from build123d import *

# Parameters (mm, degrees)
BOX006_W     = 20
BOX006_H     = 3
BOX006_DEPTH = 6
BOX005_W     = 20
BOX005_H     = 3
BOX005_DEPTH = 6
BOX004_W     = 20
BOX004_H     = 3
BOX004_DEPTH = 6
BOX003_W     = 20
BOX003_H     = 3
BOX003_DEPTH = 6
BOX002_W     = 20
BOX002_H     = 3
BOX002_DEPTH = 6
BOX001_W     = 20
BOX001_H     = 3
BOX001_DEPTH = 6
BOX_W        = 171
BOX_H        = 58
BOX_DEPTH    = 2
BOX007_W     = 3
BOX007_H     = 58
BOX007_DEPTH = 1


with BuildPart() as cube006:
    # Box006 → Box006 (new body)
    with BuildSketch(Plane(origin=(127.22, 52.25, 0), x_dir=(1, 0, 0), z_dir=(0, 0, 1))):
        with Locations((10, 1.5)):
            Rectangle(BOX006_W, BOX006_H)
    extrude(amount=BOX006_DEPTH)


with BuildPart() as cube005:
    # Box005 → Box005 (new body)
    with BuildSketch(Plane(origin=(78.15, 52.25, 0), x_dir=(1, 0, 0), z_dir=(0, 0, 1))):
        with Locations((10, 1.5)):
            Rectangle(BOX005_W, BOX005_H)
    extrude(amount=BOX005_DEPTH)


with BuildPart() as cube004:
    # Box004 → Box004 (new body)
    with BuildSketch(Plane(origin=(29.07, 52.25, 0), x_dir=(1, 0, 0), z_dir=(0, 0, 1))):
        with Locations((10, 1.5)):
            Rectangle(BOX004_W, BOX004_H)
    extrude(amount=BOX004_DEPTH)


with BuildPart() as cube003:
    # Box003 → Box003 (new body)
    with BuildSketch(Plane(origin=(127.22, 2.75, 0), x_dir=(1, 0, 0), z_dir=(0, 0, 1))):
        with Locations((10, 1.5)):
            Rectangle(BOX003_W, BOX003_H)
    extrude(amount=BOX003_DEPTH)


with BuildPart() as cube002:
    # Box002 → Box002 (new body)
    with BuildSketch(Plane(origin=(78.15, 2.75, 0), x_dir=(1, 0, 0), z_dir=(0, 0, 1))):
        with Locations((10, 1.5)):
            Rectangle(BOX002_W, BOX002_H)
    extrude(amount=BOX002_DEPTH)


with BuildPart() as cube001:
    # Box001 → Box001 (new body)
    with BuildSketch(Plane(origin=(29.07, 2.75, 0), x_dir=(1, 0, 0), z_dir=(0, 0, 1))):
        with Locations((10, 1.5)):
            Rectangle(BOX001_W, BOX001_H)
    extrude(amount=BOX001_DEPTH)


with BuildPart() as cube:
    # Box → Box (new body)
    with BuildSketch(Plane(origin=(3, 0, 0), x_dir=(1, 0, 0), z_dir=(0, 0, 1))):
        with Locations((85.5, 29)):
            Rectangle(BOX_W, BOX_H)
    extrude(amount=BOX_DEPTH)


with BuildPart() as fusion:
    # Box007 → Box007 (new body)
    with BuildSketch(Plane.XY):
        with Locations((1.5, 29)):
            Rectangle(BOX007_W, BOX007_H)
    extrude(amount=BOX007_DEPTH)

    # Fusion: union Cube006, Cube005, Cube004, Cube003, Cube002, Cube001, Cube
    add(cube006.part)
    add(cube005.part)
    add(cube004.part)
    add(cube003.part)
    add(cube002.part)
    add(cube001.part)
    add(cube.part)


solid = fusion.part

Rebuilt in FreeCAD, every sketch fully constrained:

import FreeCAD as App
import Part
import Sketcher

V = App.Vector
Q = App.Units.Quantity

doc = App.newDocument("Part")
body = doc.addObject("PartDesign::Body", "Body")

sketch1 = doc.addObject("Sketcher::SketchObject", "Sketch")
body.addObject(sketch1)
sketch1.AttachmentSupport = (doc.XY_Plane, [""])
sketch1.MapMode = "FlatFace"
sketch1.addGeometry([
    Part.LineSegment(V(127.2, 55.2, 0), V(127.2, 52.2, 0)),
    Part.LineSegment(V(127.2, 52.2, 0), V(147.2, 52.2, 0)),
    Part.LineSegment(V(147.2, 52.2, 0), V(147.2, 55.2, 0)),
    Part.LineSegment(V(147.2, 55.2, 0), V(127.2, 55.2, 0)),
], False)
sketch1.addConstraint([
    Sketcher.Constraint("Coincident", 0, 2, 1, 1),
    Sketcher.Constraint("Coincident", 1, 2, 2, 1),
    Sketcher.Constraint("Coincident", 2, 2, 3, 1),
    Sketcher.Constraint("Coincident", 3, 2, 0, 1),
    Sketcher.Constraint("Vertical", 0),
    Sketcher.Constraint("Horizontal", 1),
    Sketcher.Constraint("Vertical", 2),
    Sketcher.Constraint("Horizontal", 3),
    Sketcher.Constraint("DistanceX", 1, 1, 1, 2, Q("20 mm")),
    Sketcher.Constraint("DistanceY", 0, 2, 0, 1, Q("3 mm")),
    Sketcher.Constraint("DistanceX", -1, 1, 0, 2, Q("127.22 mm")),
    Sketcher.Constraint("DistanceY", -1, 1, 0, 2, Q("52.25 mm")),
])
pad1 = doc.addObject("PartDesign::Pad", "Pad")
body.addObject(pad1)
pad1.Profile = sketch1
pad1.Length = 6
body2 = doc.addObject("PartDesign::Body", "Body001")

sketch2 = doc.addObject("Sketcher::SketchObject", "Sketch001")
body2.addObject(sketch2)
sketch2.AttachmentSupport = (doc.getObject("XY_Plane001"), [""])
sketch2.MapMode = "FlatFace"
sketch2.addGeometry([
    Part.LineSegment(V(78.2, 55.2, 0), V(78.2, 52.2, 0)),
    Part.LineSegment(V(78.2, 52.2, 0), V(98.2, 52.2, 0)),
    Part.LineSegment(V(98.2, 52.2, 0), V(98.2, 55.2, 0)),
    Part.LineSegment(V(98.2, 55.2, 0), V(78.2, 55.2, 0)),
], False)
sketch2.addConstraint([
    Sketcher.Constraint("Coincident", 0, 2, 1, 1),
    Sketcher.Constraint("Coincident", 1, 2, 2, 1),
    Sketcher.Constraint("Coincident", 2, 2, 3, 1),
    Sketcher.Constraint("Coincident", 3, 2, 0, 1),
    Sketcher.Constraint("Vertical", 0),
    Sketcher.Constraint("Horizontal", 1),
    Sketcher.Constraint("Vertical", 2),
    Sketcher.Constraint("Horizontal", 3),
    Sketcher.Constraint("DistanceX", 1, 1, 1, 2, Q("20 mm")),
    Sketcher.Constraint("DistanceY", 0, 2, 0, 1, Q("3 mm")),
    Sketcher.Constraint("DistanceX", -1, 1, 0, 2, Q("78.15 mm")),
    Sketcher.Constraint("DistanceY", -1, 1, 0, 2, Q("52.25 mm")),
])
pad2 = doc.addObject("PartDesign::Pad", "Pad001")
body2.addObject(pad2)
pad2.Profile = sketch2
pad2.Length = 6
body3 = doc.addObject("PartDesign::Body", "Body002")

sketch3 = doc.addObject("Sketcher::SketchObject", "Sketch002")
body3.addObject(sketch3)
sketch3.AttachmentSupport = (doc.getObject("XY_Plane002"), [""])
sketch3.MapMode = "FlatFace"
sketch3.addGeometry([
    Part.LineSegment(V(29.1, 55.2, 0), V(29.1, 52.2, 0)),
    Part.LineSegment(V(29.1, 52.2, 0), V(49.1, 52.2, 0)),
    Part.LineSegment(V(49.1, 52.2, 0), V(49.1, 55.2, 0)),
    Part.LineSegment(V(49.1, 55.2, 0), V(29.1, 55.2, 0)),
], False)
sketch3.addConstraint([
    Sketcher.Constraint("Coincident", 0, 2, 1, 1),
    Sketcher.Constraint("Coincident", 1, 2, 2, 1),
    Sketcher.Constraint("Coincident", 2, 2, 3, 1),
    Sketcher.Constraint("Coincident", 3, 2, 0, 1),
    Sketcher.Constraint("Vertical", 0),
    Sketcher.Constraint("Horizontal", 1),
    Sketcher.Constraint("Vertical", 2),
    Sketcher.Constraint("Horizontal", 3),
    Sketcher.Constraint("DistanceX", 1, 1, 1, 2, Q("20 mm")),
    Sketcher.Constraint("DistanceY", 0, 2, 0, 1, Q("3 mm")),
    Sketcher.Constraint("DistanceX", -1, 1, 0, 2, Q("29.07 mm")),
    Sketcher.Constraint("DistanceY", -1, 1, 0, 2, Q("52.25 mm")),
])
pad3 = doc.addObject("PartDesign::Pad", "Pad002")
body3.addObject(pad3)
pad3.Profile = sketch3
pad3.Length = 6
body4 = doc.addObject("PartDesign::Body", "Body003")

sketch4 = doc.addObject("Sketcher::SketchObject", "Sketch003")
body4.addObject(sketch4)
sketch4.AttachmentSupport = (doc.getObject("XY_Plane003"), [""])
sketch4.MapMode = "FlatFace"
sketch4.addGeometry([
    Part.LineSegment(V(127.2, 5.8, 0), V(127.2, 2.8, 0)),
    Part.LineSegment(V(127.2, 2.8, 0), V(147.2, 2.8, 0)),
    Part.LineSegment(V(147.2, 2.8, 0), V(147.2, 5.8, 0)),
    Part.LineSegment(V(147.2, 5.8, 0), V(127.2, 5.8, 0)),
], False)
sketch4.addConstraint([
    Sketcher.Constraint("Coincident", 0, 2, 1, 1),
    Sketcher.Constraint("Coincident", 1, 2, 2, 1),
    Sketcher.Constraint("Coincident", 2, 2, 3, 1),
    Sketcher.Constraint("Coincident", 3, 2, 0, 1),
    Sketcher.Constraint("Vertical", 0),
    Sketcher.Constraint("Horizontal", 1),
    Sketcher.Constraint("Vertical", 2),
    Sketcher.Constraint("Horizontal", 3),
    Sketcher.Constraint("DistanceX", 1, 1, 1, 2, Q("20 mm")),
    Sketcher.Constraint("DistanceY", 0, 2, 0, 1, Q("3 mm")),
    Sketcher.Constraint("DistanceX", -1, 1, 0, 2, Q("127.22 mm")),
    Sketcher.Constraint("DistanceY", -1, 1, 0, 2, Q("2.75 mm")),
])
pad4 = doc.addObject("PartDesign::Pad", "Pad003")
body4.addObject(pad4)
pad4.Profile = sketch4
pad4.Length = 6
body5 = doc.addObject("PartDesign::Body", "Body004")

sketch5 = doc.addObject("Sketcher::SketchObject", "Sketch004")
body5.addObject(sketch5)
sketch5.AttachmentSupport = (doc.getObject("XY_Plane004"), [""])
sketch5.MapMode = "FlatFace"
sketch5.addGeometry([
    Part.LineSegment(V(78.2, 5.8, 0), V(78.2, 2.8, 0)),
    Part.LineSegment(V(78.2, 2.8, 0), V(98.2, 2.8, 0)),
    Part.LineSegment(V(98.2, 2.8, 0), V(98.2, 5.8, 0)),
    Part.LineSegment(V(98.2, 5.8, 0), V(78.2, 5.8, 0)),
], False)
sketch5.addConstraint([
    Sketcher.Constraint("Coincident", 0, 2, 1, 1),
    Sketcher.Constraint("Coincident", 1, 2, 2, 1),
    Sketcher.Constraint("Coincident", 2, 2, 3, 1),
    Sketcher.Constraint("Coincident", 3, 2, 0, 1),
    Sketcher.Constraint("Vertical", 0),
    Sketcher.Constraint("Horizontal", 1),
    Sketcher.Constraint("Vertical", 2),
    Sketcher.Constraint("Horizontal", 3),
    Sketcher.Constraint("DistanceX", 1, 1, 1, 2, Q("20 mm")),
    Sketcher.Constraint("DistanceY", 0, 2, 0, 1, Q("3 mm")),
    Sketcher.Constraint("DistanceX", -1, 1, 0, 2, Q("78.15 mm")),
    Sketcher.Constraint("DistanceY", -1, 1, 0, 2, Q("2.75 mm")),
])
pad5 = doc.addObject("PartDesign::Pad", "Pad004")
body5.addObject(pad5)
pad5.Profile = sketch5
pad5.Length = 6
body6 = doc.addObject("PartDesign::Body", "Body005")

sketch6 = doc.addObject("Sketcher::SketchObject", "Sketch005")
body6.addObject(sketch6)
sketch6.AttachmentSupport = (doc.getObject("XY_Plane005"), [""])
sketch6.MapMode = "FlatFace"
sketch6.addGeometry([
    Part.LineSegment(V(29.1, 5.8, 0), V(29.1, 2.8, 0)),
    Part.LineSegment(V(29.1, 2.8, 0), V(49.1, 2.8, 0)),
    Part.LineSegment(V(49.1, 2.8, 0), V(49.1, 5.8, 0)),
    Part.LineSegment(V(49.1, 5.8, 0), V(29.1, 5.8, 0)),
], False)
sketch6.addConstraint([
    Sketcher.Constraint("Coincident", 0, 2, 1, 1),
    Sketcher.Constraint("Coincident", 1, 2, 2, 1),
    Sketcher.Constraint("Coincident", 2, 2, 3, 1),
    Sketcher.Constraint("Coincident", 3, 2, 0, 1),
    Sketcher.Constraint("Vertical", 0),
    Sketcher.Constraint("Horizontal", 1),
    Sketcher.Constraint("Vertical", 2),
    Sketcher.Constraint("Horizontal", 3),
    Sketcher.Constraint("DistanceX", 1, 1, 1, 2, Q("20 mm")),
    Sketcher.Constraint("DistanceY", 0, 2, 0, 1, Q("3 mm")),
    Sketcher.Constraint("DistanceX", -1, 1, 0, 2, Q("29.07 mm")),
    Sketcher.Constraint("DistanceY", -1, 1, 0, 2, Q("2.75 mm")),
])
pad6 = doc.addObject("PartDesign::Pad", "Pad005")
body6.addObject(pad6)
pad6.Profile = sketch6
pad6.Length = 6
body7 = doc.addObject("PartDesign::Body", "Body006")

sketch7 = doc.addObject("Sketcher::SketchObject", "Sketch006")
body7.addObject(sketch7)
sketch7.AttachmentSupport = (doc.getObject("XY_Plane006"), [""])
sketch7.MapMode = "FlatFace"
sketch7.addGeometry([
    Part.LineSegment(V(3, 58, 0), V(3, 0, 0)),
    Part.LineSegment(V(3, 0, 0), V(174, 0, 0)),
    Part.LineSegment(V(174, 0, 0), V(174, 58, 0)),
    Part.LineSegment(V(174, 58, 0), V(3, 58, 0)),
], False)
sketch7.addConstraint([
    Sketcher.Constraint("Coincident", 0, 2, 1, 1),
    Sketcher.Constraint("Coincident", 1, 2, 2, 1),
    Sketcher.Constraint("Coincident", 2, 2, 3, 1),
    Sketcher.Constraint("Coincident", 3, 2, 0, 1),
    Sketcher.Constraint("Vertical", 0),
    Sketcher.Constraint("Horizontal", 1),
    Sketcher.Constraint("Vertical", 2),
    Sketcher.Constraint("Horizontal", 3),
    Sketcher.Constraint("PointOnObject", 0, 2, -1),
    Sketcher.Constraint("DistanceX", 1, 1, 1, 2, Q("171 mm")),
    Sketcher.Constraint("DistanceY", 0, 2, 0, 1, Q("58 mm")),
    Sketcher.Constraint("DistanceX", -1, 1, 0, 2, Q("3 mm")),
])
pad7 = doc.addObject("PartDesign::Pad", "Pad006")
body7.addObject(pad7)
pad7.Profile = sketch7
pad7.Length = 2
body8 = doc.addObject("PartDesign::Body", "Body007")
body8.AllowCompound = True

sketch8 = doc.addObject("Sketcher::SketchObject", "Sketch007")
body8.addObject(sketch8)
sketch8.AttachmentSupport = (doc.getObject("XY_Plane007"), [""])
sketch8.MapMode = "FlatFace"
sketch8.addGeometry([
    Part.LineSegment(V(0, 58, 0), V(0, 0, 0)),
    Part.LineSegment(V(0, 0, 0), V(3, 0, 0)),
    Part.LineSegment(V(3, 0, 0), V(3, 58, 0)),
    Part.LineSegment(V(3, 58, 0), V(0, 58, 0)),
], False)
sketch8.addConstraint([
    Sketcher.Constraint("Coincident", 0, 2, 1, 1),
    Sketcher.Constraint("Coincident", 1, 2, 2, 1),
    Sketcher.Constraint("Coincident", 2, 2, 3, 1),
    Sketcher.Constraint("Coincident", 3, 2, 0, 1),
    Sketcher.Constraint("Vertical", 0),
    Sketcher.Constraint("Horizontal", 1),
    Sketcher.Constraint("Vertical", 2),
    Sketcher.Constraint("Horizontal", 3),
    Sketcher.Constraint("Coincident", 0, 2, -1, 1),
    Sketcher.Constraint("DistanceX", 1, 1, 1, 2, Q("3 mm")),
    Sketcher.Constraint("DistanceY", 0, 2, 0, 1, Q("58 mm")),
])
pad8 = doc.addObject("PartDesign::Pad", "Pad007")
body8.addObject(pad8)
pad8.Profile = sketch8
pad8.Length = 1
doc.recompute()

boolean = doc.addObject("PartDesign::Boolean", "Boolean")
body8.addObject(boolean)
boolean.Type = "Fuse"
boolean.addObjects([body])
doc.recompute()

boolean2 = doc.addObject("PartDesign::Boolean", "Boolean001")
body8.addObject(boolean2)
boolean2.Type = "Fuse"
boolean2.addObjects([body2])
doc.recompute()

boolean3 = doc.addObject("PartDesign::Boolean", "Boolean002")
body8.addObject(boolean3)
boolean3.Type = "Fuse"
boolean3.addObjects([body3])
doc.recompute()

boolean4 = doc.addObject("PartDesign::Boolean", "Boolean003")
body8.addObject(boolean4)
boolean4.Type = "Fuse"
boolean4.addObjects([body4])
doc.recompute()

boolean5 = doc.addObject("PartDesign::Boolean", "Boolean004")
body8.addObject(boolean5)
boolean5.Type = "Fuse"
boolean5.addObjects([body5])
doc.recompute()

boolean6 = doc.addObject("PartDesign::Boolean", "Boolean005")
body8.addObject(boolean6)
boolean6.Type = "Fuse"
boolean6.addObjects([body6])
doc.recompute()

boolean7 = doc.addObject("PartDesign::Boolean", "Boolean006")
body8.addObject(boolean7)
boolean7.Type = "Fuse"
boolean7.addObjects([body7])

doc.recompute()
